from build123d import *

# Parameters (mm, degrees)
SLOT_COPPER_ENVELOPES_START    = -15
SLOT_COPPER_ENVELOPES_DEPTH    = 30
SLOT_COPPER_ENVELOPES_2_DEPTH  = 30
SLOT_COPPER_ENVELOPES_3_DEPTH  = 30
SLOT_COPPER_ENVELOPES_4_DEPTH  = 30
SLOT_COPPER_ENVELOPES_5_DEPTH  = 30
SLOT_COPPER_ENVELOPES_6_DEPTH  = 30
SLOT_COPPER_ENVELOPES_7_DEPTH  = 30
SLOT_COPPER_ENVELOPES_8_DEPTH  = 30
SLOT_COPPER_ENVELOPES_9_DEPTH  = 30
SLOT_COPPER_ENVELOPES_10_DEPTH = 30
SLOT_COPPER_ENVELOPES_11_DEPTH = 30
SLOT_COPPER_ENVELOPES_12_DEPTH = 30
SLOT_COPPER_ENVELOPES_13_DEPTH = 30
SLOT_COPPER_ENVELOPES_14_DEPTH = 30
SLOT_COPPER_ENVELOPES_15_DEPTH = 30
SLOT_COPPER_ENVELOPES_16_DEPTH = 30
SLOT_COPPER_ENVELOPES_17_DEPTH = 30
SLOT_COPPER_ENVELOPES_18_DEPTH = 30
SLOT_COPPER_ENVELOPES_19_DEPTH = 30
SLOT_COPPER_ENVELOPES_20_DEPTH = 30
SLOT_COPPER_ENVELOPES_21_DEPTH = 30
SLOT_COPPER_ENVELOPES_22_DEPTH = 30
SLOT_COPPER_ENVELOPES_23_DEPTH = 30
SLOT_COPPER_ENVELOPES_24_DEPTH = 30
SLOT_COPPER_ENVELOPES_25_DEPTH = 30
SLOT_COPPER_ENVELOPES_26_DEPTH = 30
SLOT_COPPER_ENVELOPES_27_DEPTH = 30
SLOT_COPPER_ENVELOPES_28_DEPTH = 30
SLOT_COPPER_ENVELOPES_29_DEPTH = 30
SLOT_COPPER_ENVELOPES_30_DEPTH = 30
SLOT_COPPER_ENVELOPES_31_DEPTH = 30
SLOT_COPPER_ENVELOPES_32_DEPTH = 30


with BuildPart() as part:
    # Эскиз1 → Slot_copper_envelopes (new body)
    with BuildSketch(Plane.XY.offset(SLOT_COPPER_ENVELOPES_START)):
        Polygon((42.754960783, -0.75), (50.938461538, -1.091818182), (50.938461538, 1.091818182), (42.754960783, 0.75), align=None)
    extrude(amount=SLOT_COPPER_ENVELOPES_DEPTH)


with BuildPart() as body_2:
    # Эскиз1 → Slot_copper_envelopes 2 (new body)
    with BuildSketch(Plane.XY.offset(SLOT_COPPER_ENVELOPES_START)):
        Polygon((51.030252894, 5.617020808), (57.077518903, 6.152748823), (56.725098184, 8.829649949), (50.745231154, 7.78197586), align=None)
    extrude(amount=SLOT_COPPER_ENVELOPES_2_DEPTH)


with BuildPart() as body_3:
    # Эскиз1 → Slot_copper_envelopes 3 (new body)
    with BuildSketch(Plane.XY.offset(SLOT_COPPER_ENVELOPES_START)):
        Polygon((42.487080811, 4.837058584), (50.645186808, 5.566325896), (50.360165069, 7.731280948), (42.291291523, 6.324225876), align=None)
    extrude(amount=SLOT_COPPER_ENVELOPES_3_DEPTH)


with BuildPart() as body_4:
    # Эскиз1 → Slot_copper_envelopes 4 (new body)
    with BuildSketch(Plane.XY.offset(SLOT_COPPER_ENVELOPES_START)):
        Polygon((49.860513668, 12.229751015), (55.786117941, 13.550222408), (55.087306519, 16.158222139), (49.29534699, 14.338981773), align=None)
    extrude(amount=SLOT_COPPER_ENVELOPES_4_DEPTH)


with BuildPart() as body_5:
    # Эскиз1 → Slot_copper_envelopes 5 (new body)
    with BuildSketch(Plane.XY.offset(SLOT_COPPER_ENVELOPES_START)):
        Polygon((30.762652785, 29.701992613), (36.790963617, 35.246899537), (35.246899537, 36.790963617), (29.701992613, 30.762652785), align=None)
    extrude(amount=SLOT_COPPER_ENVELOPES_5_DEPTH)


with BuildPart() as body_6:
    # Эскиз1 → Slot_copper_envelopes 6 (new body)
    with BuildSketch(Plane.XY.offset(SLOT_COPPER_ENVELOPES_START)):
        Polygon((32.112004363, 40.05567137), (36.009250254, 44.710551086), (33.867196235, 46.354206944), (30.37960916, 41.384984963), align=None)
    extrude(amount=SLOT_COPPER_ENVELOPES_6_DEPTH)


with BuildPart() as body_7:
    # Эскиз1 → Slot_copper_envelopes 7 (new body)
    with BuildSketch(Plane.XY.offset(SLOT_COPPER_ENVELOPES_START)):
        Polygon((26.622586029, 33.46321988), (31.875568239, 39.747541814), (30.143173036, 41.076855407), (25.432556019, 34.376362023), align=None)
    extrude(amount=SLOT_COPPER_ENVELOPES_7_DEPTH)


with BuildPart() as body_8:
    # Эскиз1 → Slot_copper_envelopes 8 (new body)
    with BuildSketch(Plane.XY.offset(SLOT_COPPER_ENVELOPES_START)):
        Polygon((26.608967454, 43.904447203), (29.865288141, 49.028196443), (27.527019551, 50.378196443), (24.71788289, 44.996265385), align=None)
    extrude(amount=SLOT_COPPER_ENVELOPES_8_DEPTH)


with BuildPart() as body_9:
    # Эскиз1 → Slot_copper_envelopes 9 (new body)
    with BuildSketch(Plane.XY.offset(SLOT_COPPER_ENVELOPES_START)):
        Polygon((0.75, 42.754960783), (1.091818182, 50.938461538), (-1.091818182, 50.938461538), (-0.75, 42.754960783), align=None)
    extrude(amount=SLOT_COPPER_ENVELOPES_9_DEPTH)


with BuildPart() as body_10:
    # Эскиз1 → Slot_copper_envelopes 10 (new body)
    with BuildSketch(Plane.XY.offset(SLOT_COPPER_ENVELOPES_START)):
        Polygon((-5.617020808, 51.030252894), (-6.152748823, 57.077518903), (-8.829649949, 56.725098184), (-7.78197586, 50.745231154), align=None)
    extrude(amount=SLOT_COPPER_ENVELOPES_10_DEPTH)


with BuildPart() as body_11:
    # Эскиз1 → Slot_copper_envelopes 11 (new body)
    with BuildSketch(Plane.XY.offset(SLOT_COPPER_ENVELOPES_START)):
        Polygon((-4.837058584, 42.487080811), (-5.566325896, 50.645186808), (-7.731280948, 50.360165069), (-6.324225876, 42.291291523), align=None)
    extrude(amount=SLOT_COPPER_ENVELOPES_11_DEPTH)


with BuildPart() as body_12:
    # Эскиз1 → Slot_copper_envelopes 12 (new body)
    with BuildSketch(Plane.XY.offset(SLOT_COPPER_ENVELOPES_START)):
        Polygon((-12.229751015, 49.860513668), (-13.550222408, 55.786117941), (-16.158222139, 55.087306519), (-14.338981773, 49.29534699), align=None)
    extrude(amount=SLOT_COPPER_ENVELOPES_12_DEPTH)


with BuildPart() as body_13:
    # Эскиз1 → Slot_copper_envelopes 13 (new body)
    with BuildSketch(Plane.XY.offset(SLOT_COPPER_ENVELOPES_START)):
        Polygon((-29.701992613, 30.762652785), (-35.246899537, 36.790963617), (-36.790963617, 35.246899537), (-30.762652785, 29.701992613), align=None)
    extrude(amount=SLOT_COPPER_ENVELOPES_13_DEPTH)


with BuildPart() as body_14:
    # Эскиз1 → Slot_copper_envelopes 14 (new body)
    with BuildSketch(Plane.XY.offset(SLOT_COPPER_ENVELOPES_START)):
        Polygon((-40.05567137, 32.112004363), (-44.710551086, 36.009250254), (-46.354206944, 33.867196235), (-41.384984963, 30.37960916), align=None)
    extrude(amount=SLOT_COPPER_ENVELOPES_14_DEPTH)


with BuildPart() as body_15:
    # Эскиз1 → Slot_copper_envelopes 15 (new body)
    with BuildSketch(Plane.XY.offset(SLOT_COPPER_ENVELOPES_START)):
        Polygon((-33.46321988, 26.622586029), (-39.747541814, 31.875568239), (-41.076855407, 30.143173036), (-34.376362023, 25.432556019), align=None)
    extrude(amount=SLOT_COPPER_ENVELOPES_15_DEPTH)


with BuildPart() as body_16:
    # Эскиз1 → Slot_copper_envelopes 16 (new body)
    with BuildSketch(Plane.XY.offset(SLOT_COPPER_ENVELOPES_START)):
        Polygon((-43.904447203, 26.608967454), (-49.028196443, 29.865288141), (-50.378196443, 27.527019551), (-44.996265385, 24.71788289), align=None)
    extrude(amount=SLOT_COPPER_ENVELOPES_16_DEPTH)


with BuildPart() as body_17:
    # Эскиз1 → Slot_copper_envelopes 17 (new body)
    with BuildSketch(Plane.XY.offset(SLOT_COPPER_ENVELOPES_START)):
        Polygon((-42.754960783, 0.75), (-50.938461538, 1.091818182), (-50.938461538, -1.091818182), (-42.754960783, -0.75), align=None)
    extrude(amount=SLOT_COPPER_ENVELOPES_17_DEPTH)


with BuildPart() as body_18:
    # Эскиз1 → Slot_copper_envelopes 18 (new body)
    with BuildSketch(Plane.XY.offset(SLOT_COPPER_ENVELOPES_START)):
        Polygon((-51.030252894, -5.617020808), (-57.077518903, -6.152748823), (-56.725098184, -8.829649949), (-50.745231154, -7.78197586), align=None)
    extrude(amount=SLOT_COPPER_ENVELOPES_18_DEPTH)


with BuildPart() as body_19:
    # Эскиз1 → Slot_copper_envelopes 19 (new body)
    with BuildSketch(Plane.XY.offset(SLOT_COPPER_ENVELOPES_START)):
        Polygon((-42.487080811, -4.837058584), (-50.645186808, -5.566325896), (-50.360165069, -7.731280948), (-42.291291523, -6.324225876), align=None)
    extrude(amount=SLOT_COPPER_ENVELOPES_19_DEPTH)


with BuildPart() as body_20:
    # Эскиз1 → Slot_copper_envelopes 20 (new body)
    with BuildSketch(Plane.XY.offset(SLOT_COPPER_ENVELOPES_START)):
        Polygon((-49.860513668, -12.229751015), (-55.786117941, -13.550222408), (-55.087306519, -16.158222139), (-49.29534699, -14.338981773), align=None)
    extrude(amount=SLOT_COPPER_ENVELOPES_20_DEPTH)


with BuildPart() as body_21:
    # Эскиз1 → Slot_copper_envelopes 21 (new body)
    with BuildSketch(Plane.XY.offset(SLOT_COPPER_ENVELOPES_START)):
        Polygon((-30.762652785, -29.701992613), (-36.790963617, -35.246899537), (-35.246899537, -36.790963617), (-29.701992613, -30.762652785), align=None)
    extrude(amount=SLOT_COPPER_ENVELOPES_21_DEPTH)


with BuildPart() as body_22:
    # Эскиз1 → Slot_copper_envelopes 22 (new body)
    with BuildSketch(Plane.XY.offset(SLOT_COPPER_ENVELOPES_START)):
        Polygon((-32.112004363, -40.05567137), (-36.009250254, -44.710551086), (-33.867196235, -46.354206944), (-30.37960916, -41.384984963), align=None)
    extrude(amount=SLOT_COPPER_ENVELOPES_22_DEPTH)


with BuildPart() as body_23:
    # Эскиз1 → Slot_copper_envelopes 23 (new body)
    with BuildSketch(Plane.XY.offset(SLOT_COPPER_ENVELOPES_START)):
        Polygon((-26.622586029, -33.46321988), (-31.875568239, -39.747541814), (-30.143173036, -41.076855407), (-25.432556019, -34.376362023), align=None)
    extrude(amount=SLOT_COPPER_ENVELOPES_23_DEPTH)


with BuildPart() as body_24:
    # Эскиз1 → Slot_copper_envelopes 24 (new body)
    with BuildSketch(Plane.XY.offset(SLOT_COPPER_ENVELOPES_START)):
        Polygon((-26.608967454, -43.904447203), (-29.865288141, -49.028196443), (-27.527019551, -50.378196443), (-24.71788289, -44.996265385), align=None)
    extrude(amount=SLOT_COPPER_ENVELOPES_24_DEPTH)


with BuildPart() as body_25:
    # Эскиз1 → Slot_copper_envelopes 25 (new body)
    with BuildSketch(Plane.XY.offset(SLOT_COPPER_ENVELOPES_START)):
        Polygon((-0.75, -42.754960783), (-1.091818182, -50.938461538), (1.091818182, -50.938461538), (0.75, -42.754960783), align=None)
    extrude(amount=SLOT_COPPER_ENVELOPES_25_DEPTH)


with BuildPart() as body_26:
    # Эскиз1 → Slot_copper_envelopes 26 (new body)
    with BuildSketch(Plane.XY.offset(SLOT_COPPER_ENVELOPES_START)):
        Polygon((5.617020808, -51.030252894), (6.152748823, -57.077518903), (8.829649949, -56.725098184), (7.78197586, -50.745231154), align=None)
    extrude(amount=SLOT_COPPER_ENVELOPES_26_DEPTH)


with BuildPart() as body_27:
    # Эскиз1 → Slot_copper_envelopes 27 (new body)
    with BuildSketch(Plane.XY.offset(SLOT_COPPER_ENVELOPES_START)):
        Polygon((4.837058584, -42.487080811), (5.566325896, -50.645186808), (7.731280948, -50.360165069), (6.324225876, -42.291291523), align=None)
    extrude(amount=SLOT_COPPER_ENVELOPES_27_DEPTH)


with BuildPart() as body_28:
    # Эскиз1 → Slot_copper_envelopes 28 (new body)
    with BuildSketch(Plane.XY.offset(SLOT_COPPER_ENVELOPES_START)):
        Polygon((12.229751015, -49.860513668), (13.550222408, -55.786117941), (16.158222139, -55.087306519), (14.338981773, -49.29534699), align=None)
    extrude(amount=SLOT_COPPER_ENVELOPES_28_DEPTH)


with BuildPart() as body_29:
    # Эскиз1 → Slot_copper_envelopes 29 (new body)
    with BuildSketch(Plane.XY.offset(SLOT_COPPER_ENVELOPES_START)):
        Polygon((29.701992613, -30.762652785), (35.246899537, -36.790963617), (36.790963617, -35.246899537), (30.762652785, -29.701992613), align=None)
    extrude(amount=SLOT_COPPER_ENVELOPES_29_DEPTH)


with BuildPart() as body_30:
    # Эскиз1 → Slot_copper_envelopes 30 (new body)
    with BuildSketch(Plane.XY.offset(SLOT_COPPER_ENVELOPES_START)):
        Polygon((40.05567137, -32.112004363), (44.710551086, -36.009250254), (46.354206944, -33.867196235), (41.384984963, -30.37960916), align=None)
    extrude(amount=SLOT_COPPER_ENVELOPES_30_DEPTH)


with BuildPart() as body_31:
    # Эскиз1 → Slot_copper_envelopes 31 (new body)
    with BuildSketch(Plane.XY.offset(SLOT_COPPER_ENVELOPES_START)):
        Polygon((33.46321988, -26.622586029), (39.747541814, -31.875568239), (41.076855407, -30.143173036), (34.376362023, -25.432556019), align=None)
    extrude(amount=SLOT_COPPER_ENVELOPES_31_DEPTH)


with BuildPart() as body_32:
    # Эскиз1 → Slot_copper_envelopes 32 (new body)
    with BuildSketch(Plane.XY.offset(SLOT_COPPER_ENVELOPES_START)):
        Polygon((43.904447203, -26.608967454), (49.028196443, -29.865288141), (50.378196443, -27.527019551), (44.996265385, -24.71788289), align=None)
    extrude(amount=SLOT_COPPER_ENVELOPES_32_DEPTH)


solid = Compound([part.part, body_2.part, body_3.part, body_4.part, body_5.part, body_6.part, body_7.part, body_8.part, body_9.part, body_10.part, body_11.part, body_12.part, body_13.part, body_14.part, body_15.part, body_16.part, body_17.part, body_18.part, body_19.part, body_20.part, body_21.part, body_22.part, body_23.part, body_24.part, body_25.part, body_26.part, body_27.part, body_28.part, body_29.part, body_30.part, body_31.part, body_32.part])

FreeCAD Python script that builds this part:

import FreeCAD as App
import Part
import Sketcher
from FreeCAD import Vector
Q = App.Units.Quantity


def add_polygon(sketch, points):
    """Adds a closed chain of lines whose ends are joined by coincident constraints."""
    first, n = sketch.GeometryCount, len(points)
    for a, b in zip(points, points[1:] + points[:1]):
        sketch.addGeometry(Part.LineSegment(App.Vector(*a, 0), App.Vector(*b, 0)), False)
    for i in range(n):
        sketch.addConstraint(Sketcher.Constraint("Coincident", first + i, 2, first + (i + 1) % n, 1))

doc = App.newDocument("Part")
body = doc.addObject("PartDesign::Body", "Body")

# Sketch on XY plane
sketch1 = body.newObject("Sketcher::SketchObject", "Sketch")
sketch1.AttachmentSupport = (doc.getObject("XY_Plane"), [""])
sketch1.MapMode = "FlatFace"
sketch1.AttachmentOffset = App.Placement(Vector(0, 0, -15), App.Rotation())
add_polygon(sketch1, [(42.8, -0.8), (50.9, -1.1), (50.9, 1.1), (42.8, 0.8)])  # lines 0-3
sketch1.addConstraint([
    Sketcher.Constraint("Vertical", 1),
    Sketcher.Constraint("Vertical", 3),
    Sketcher.Constraint("Equal", 0, 2),
    Sketcher.Constraint("DistanceY", 3, 2, 3, 1, 1.5),
    Sketcher.Constraint("DistanceY", -1, 1, 2, 2, 0.75),
    Sketcher.Constraint("DistanceX", 2, 2, 1, 2, 8.183501),
    Sketcher.Constraint("DistanceY", 1, 1, 1, 2, 2.183636),
    Sketcher.Constraint("DistanceX", -1, 1, 0, 2, 50.938462),
])
pad1 = body.newObject("PartDesign::Pad", "Pad")
pad1.Profile = sketch1
pad1.Length = 30
body2 = doc.addObject("PartDesign::Body", "Body001")

# Sketch on XY plane
sketch2 = body2.newObject("Sketcher::SketchObject", "Sketch001")
sketch2.AttachmentSupport = (doc.getObject("XY_Plane001"), [""])
sketch2.MapMode = "FlatFace"
sketch2.AttachmentOffset = App.Placement(Vector(0, 0, -15), App.Rotation())
add_polygon(sketch2, [(51, 5.6), (57.1, 6.2), (56.7, 8.8), (50.7, 7.8)])  # lines 0-3
sketch2.addConstraint([
    Sketcher.Constraint("Parallel", 1, 3),
    Sketcher.Constraint("Equal", 0, 2),
    Sketcher.Constraint("Angle", 1, Q("97.5 deg")),
    Sketcher.Constraint("Distance", 1, 2.7),
    Sketcher.Constraint("DistanceX", -1, 1, 1, 2, 56.725098),
    Sketcher.Constraint("Distance", 0, 6.07095),
    Sketcher.Constraint("DistanceY", -1, 1, 0, 2, 6.152749),
    Sketcher.Constraint("DistanceX", -1, 1, 2, 2, 50.745231),
])
pad2 = body2.newObject("PartDesign::Pad", "Pad001")
pad2.Profile = sketch2
pad2.Length = 30
body3 = doc.addObject("PartDesign::Body", "Body002")

# Sketch on XY plane
sketch3 = body3.newObject("Sketcher::SketchObject", "Sketch002")
sketch3.AttachmentSupport = (doc.getObject("XY_Plane002"), [""])
sketch3.MapMode = "FlatFace"
sketch3.AttachmentOffset = App.Placement(Vector(0, 0, -15), App.Rotation())
add_polygon(sketch3, [(42.5, 4.8), (50.6, 5.6), (50.4, 7.7), (42.3, 6.3)])  # lines 0-3
sketch3.addConstraint([
    Sketcher.Constraint("Parallel", 1, 3),
    Sketcher.Constraint("Equal", 0, 2),
    Sketcher.Constraint("Angle", 1, Q("97.5 deg")),
    Sketcher.Constraint("Distance", 3, 1.5),
    Sketcher.Constraint("DistanceY", 0, 2, 2, 2, 0.7579),
    Sketcher.Constraint("DistanceY", -1, 1, 1, 2, 7.731281),
    Sketcher.Constraint("DistanceX", -1, 1, 2, 2, 42.291292),
    Sketcher.Constraint("DistanceY", -1, 1, 3, 2, 4.837059),
])
pad3 = body3.newObject("PartDesign::Pad", "Pad002")
pad3.Profile = sketch3
pad3.Length = 30
body4 = doc.addObject("PartDesign::Body", "Body003")

# Sketch on XY plane
sketch4 = body4.newObject("Sketcher::SketchObject", "Sketch003")
sketch4.AttachmentSupport = (doc.getObject("XY_Plane003"), [""])
sketch4.MapMode = "FlatFace"
sketch4.AttachmentOffset = App.Placement(Vector(0, 0, -15), App.Rotation())
add_polygon(sketch4, [(49.9, 12.2), (55.8, 13.6), (55.1, 16.2), (49.3, 14.3)])  # lines 0-3
sketch4.addConstraint([
    Sketcher.Constraint("Parallel", 1, 3),
    Sketcher.Constraint("Equal", 0, 2),
    Sketcher.Constraint("Angle", 1, Q("105 deg")),
    Sketcher.Constraint("Distance", 1, 2.7),
    Sketcher.Constraint("Distance", 0, 6.07095),
    Sketcher.Constraint("DistanceY", -1, 1, 2, 2, 14.338982),
    Sketcher.Constraint("DistanceY", -1, 1, 3, 2, 12.229751),
    Sketcher.Constraint("DistanceX", -1, 1, 0, 2, 55.786118),
])
pad4 = body4.newObject("PartDesign::Pad", "Pad003")
pad4.Profile = sketch4
pad4.Length = 30
body5 = doc.addObject("PartDesign::Body", "Body004")

# Sketch on XY plane
sketch5 = body5.newObject("Sketcher::SketchObject", "Sketch004")
sketch5.AttachmentSupport = (doc.getObject("XY_Plane004"), [""])
sketch5.MapMode = "FlatFace"
sketch5.AttachmentOffset = App.Placement(Vector(0, 0, -15), App.Rotation())
add_polygon(sketch5, [(30.8, 29.7), (36.8, 35.2), (35.2, 36.8), (29.7, 30.8)])  # lines 0-3
sketch5.addConstraint([
    Sketcher.Constraint("Parallel", 1, 3),
    Sketcher.Constraint("Equal", 0, 2),
    Sketcher.Constraint("Angle", 1, Q("135 deg")),
    Sketcher.Constraint("Distance", 3, 1.5),
    Sketcher.Constraint("DistanceY", -1, 1, 0, 2, 35.2469),
    Sketcher.Constraint("DistanceX", -1, 1, 1, 2, 35.2469),
    Sketcher.Constraint("DistanceY", 2, 2, 1, 2, 6.028311),
    Sketcher.Constraint("Distance", 0, 8.190636),
])
pad5 = body5.newObject("PartDesign::Pad", "Pad004")
pad5.Profile = sketch5
pad5.Length = 30
body6 = doc.addObject("PartDesign::Body", "Body005")

# Sketch on XY plane
sketch6 = body6.newObject("Sketcher::SketchObject", "Sketch005")
sketch6.AttachmentSupport = (doc.getObject("XY_Plane005"), [""])
sketch6.MapMode = "FlatFace"
sketch6.AttachmentOffset = App.Placement(Vector(0, 0, -15), App.Rotation())
add_polygon(sketch6, [(32.1, 40.1), (36, 44.7), (33.9, 46.4), (30.4, 41.4)])  # lines 0-3
sketch6.addConstraint([
    Sketcher.Constraint("Parallel", 1, 3),
    Sketcher.Constraint("Equal", 0, 2),
    Sketcher.Constraint("Angle", 1, Q("142.5 deg")),
    Sketcher.Constraint("Distance", 1, 2.7),
    Sketcher.Constraint("Distance", 0, 6.07095),
    Sketcher.Constraint("DistanceX", -1, 1, 0, 2, 36.00925),
    Sketcher.Constraint("DistanceY", -1, 1, 0, 2, 44.710551),
    Sketcher.Constraint("DistanceX", -1, 1, 2, 2, 30.379609),
])
pad6 = body6.newObject("PartDesign::Pad", "Pad005")
pad6.Profile = sketch6
pad6.Length = 30
body7 = doc.addObject("PartDesign::Body", "Body006")

# Sketch on XY plane
sketch7 = body7.newObject("Sketcher::SketchObject", "Sketch006")
sketch7.AttachmentSupport = (doc.getObject("XY_Plane006"), [""])
sketch7.MapMode = "FlatFace"
sketch7.AttachmentOffset = App.Placement(Vector(0, 0, -15), App.Rotation())
add_polygon(sketch7, [(26.6, 33.5), (31.9, 39.7), (30.1, 41.1), (25.4, 34.4)])  # lines 0-3
sketch7.addConstraint([
    Sketcher.Constraint("Parallel", 1, 3),
    Sketcher.Constraint("Equal", 0, 2),
    Sketcher.Constraint("Angle", 1, Q("142.5 deg")),
    Sketcher.Constraint("Distance", 3, 1.5),
    Sketcher.Constraint("DistanceX", -1, 1, 0, 2, 31.875568),
    Sketcher.Constraint("DistanceY", -1, 1, 0, 2, 39.747542),
    Sketcher.Constraint("DistanceY", -1, 1, 3, 2, 33.46322),
    Sketcher.Constraint("Distance", 0, 8.190636),
])
pad7 = body7.newObject("PartDesign::Pad", "Pad006")
pad7.Profile = sketch7
pad7.Length = 30
body8 = doc.addObject("PartDesign::Body", "Body007")

# Sketch on XY plane
sketch8 = body8.newObject("Sketcher::SketchObject", "Sketch007")
sketch8.AttachmentSupport = (doc.getObject("XY_Plane007"), [""])
sketch8.MapMode = "FlatFace"
sketch8.AttachmentOffset = App.Placement(Vector(0, 0, -15), App.Rotation())
add_polygon(sketch8, [(26.6, 43.9), (29.9, 49), (27.5, 50.4), (24.7, 45)])  # lines 0-3
sketch8.addConstraint([
    Sketcher.Constraint("Parallel", 1, 3),
    Sketcher.Constraint("Equal", 0, 2),
    Sketcher.Constraint("Angle", 1, Q("150 deg")),
    Sketcher.Constraint("Distance", 1, 2.7),
    Sketcher.Constraint("Distance", 0, 6.07095),
    Sketcher.Constraint("DistanceX", -1, 1, 0, 2, 29.865288),
    Sketcher.Constraint("DistanceY", 2, 2, 1, 2, 5.381931),
    Sketcher.Constraint("DistanceY", -1, 1, 0, 2, 49.028196),
])
pad8 = body8.newObject("PartDesign::Pad", "Pad007")
pad8.Profile = sketch8
pad8.Length = 30
body9 = doc.addObject("PartDesign::Body", "Body008")

# Sketch on XY plane
sketch9 = body9.newObject("Sketcher::SketchObject", "Sketch008")
sketch9.AttachmentSupport = (doc.getObject("XY_Plane008"), [""])
sketch9.MapMode = "FlatFace"
sketch9.AttachmentOffset = App.Placement(Vector(0, 0, -15), App.Rotation())
add_polygon(sketch9, [(0.8, 42.8), (1.1, 50.9), (-1.1, 50.9), (-0.8, 42.8)])  # lines 0-3
sketch9.addConstraint([
    Sketcher.Constraint("Horizontal", 1),
    Sketcher.Constraint("Horizontal", 3),
    Sketcher.Constraint("Equal", 0, 2),
    Sketcher.Constraint("DistanceX", 3, 1, 3, 2, 1.5),
    Sketcher.Constraint("DistanceX", 2, 2, -1, 1, 0.75),
    Sketcher.Constraint("DistanceY", 2, 2, 1, 2, 8.183501),
    Sketcher.Constraint("DistanceX", 1, 2, 1, 1, 2.183636),
    Sketcher.Constraint("DistanceY", -1, 1, 0, 2, 50.938462),
])
pad9 = body9.newObject("PartDesign::Pad", "Pad008")
pad9.Profile = sketch9
pad9.Length = 30
body10 = doc.addObject("PartDesign::Body", "Body009")

# Sketch on XY plane
sketch10 = body10.newObject("Sketcher::SketchObject", "Sketch009")
sketch10.AttachmentSupport = (doc.getObject("XY_Plane009"), [""])
sketch10.MapMode = "FlatFace"
sketch10.AttachmentOffset = App.Placement(Vector(0, 0, -15), App.Rotation())
add_polygon(sketch10, [(-5.6, 51), (-6.2, 57.1), (-8.8, 56.7), (-7.8, 50.7)])  # lines 0-3
sketch10.addConstraint([
    Sketcher.Constraint("Parallel", 1, 3),
    Sketcher.Constraint("Equal", 0, 2),
    Sketcher.Constraint("Angle", 1, Q("-172.5 deg")),
    Sketcher.Constraint("Distance", 1, 2.7),
    Sketcher.Constraint("DistanceY", -1, 1, 1, 2, 56.725098),
    Sketcher.Constraint("Distance", 0, 6.07095),
    Sketcher.Constraint("DistanceX", 0, 2, -1, 1, 6.152749),
    Sketcher.Constraint("DistanceY", -1, 1, 2, 2, 50.745231),
])
pad10 = body10.newObject("PartDesign::Pad", "Pad009")
pad10.Profile = sketch10
pad10.Length = 30
body11 = doc.addObject("PartDesign::Body", "Body010")

# Sketch on XY plane
sketch11 = body11.newObject("Sketcher::SketchObject", "Sketch010")
sketch11.AttachmentSupport = (doc.getObject("XY_Plane010"), [""])
sketch11.MapMode = "FlatFace"
sketch11.AttachmentOffset = App.Placement(Vector(0, 0, -15), App.Rotation())
add_polygon(sketch11, [(-4.8, 42.5), (-5.6, 50.6), (-7.7, 50.4), (-6.3, 42.3)])  # lines 0-3
sketch11.addConstraint([
    Sketcher.Constraint("Parallel", 1, 3),
    Sketcher.Constraint("Equal", 0, 2),
    Sketcher.Constraint("Angle", 1, Q("-172.5 deg")),
    Sketcher.Constraint("Distance", 3, 1.5),
    Sketcher.Constraint("DistanceX", 2, 2, 0, 2, 0.7579),
    Sketcher.Constraint("DistanceX", 1, 2, -1, 1, 7.731281),
    Sketcher.Constraint("DistanceY", -1, 1, 2, 2, 42.291292),
    Sketcher.Constraint("DistanceX", 3, 2, -1, 1, 4.837059),
])
pad11 = body11.newObject("PartDesign::Pad", "Pad010")
pad11.Profile = sketch11
pad11.Length = 30
body12 = doc.addObject("PartDesign::Body", "Body011")

# Sketch on XY plane
sketch12 = body12.newObject("Sketcher::SketchObject", "Sketch011")
sketch12.AttachmentSupport = (doc.getObject("XY_Plane011"), [""])
sketch12.MapMode = "FlatFace"
sketch12.AttachmentOffset = App.Placement(Vector(0, 0, -15), App.Rotation())
add_polygon(sketch12, [(-12.2, 49.9), (-13.6, 55.8), (-16.2, 55.1), (-14.3, 49.3)])  # lines 0-3
sketch12.addConstraint([
    Sketcher.Constraint("Parallel", 1, 3),
    Sketcher.Constraint("Equal", 0, 2),
    Sketcher.Constraint("Angle", 1, Q("-165 deg")),
    Sketcher.Constraint("Distance", 1, 2.7),
    Sketcher.Constraint("Distance", 0, 6.07095),
    Sketcher.Constraint("DistanceX", 2, 2, -1, 1, 14.338982),
    Sketcher.Constraint("DistanceX", 3, 2, -1, 1, 12.229751),
    Sketcher.Constraint("DistanceY", -1, 1, 0, 2, 55.786118),
])
pad12 = body12.newObject("PartDesign::Pad", "Pad011")
pad12.Profile = sketch12
pad12.Length = 30
body13 = doc.addObject("PartDesign::Body", "Body012")

# Sketch on XY plane
sketch13 = body13.newObject("Sketcher::SketchObject", "Sketch012")
sketch13.AttachmentSupport = (doc.getObject("XY_Plane012"), [""])
sketch13.MapMode = "FlatFace"
sketch13.AttachmentOffset = App.Placement(Vector(0, 0, -15), App.Rotation())
add_polygon(sketch13, [(-29.7, 30.8), (-35.2, 36.8), (-36.8, 35.2), (-30.8, 29.7)])  # lines 0-3
sketch13.addConstraint([
    Sketcher.Constraint("Parallel", 1, 3),
    Sketcher.Constraint("Equal", 0, 2),
    Sketcher.Constraint("Angle", 1, Q("-135 deg")),
    Sketcher.Constraint("Distance", 3, 1.5),
    Sketcher.Constraint("DistanceX", 0, 2, -1, 1, 35.2469),
    Sketcher.Constraint("DistanceY", -1, 1, 1, 2, 35.2469),
    Sketcher.Constraint("DistanceX", 1, 2, 2, 2, 6.028311),
    Sketcher.Constraint("Distance", 0, 8.190636),
])
pad13 = body13.newObject("PartDesign::Pad", "Pad012")
pad13.Profile = sketch13
pad13.Length = 30
body14 = doc.addObject("PartDesign::Body", "Body013")

# Sketch on XY plane
sketch14 = body14.newObject("Sketcher::SketchObject", "Sketch013")
sketch14.AttachmentSupport = (doc.getObject("XY_Plane013"), [""])
sketch14.MapMode = "FlatFace"
sketch14.AttachmentOffset = App.Placement(Vector(0, 0, -15), App.Rotation())
add_polygon(sketch14, [(-40.1, 32.1), (-44.7, 36), (-46.4, 33.9), (-41.4, 30.4)])  # lines 0-3
sketch14.addConstraint([
    Sketcher.Constraint("Parallel", 1, 3),
    Sketcher.Constraint("Equal", 0, 2),
    Sketcher.Constraint("Angle", 1, Q("-127.5 deg")),
    Sketcher.Constraint("Distance", 1, 2.7),
    Sketcher.Constraint("Distance", 0, 6.07095),
    Sketcher.Constraint("DistanceX", 0, 2, -1, 1, 44.710551),
    Sketcher.Constraint("DistanceY", -1, 1, 0, 2, 36.00925),
    Sketcher.Constraint("DistanceY", -1, 1, 2, 2, 30.379609),
])
pad14 = body14.newObject("PartDesign::Pad", "Pad013")
pad14.Profile = sketch14
pad14.Length = 30
body15 = doc.addObject("PartDesign::Body", "Body014")

# Sketch on XY plane
sketch15 = body15.newObject("Sketcher::SketchObject", "Sketch014")
sketch15.AttachmentSupport = (doc.getObject("XY_Plane014"), [""])
sketch15.MapMode = "FlatFace"
sketch15.AttachmentOffset = App.Placement(Vector(0, 0, -15), App.Rotation())
add_polygon(sketch15, [(-33.5, 26.6), (-39.7, 31.9), (-41.1, 30.1), (-34.4, 25.4)])  # lines 0-3
sketch15.addConstraint([
    Sketcher.Constraint("Parallel", 1, 3),
    Sketcher.Constraint("Equal", 0, 2),
    Sketcher.Constraint("Angle", 1, Q("-127.5 deg")),
    Sketcher.Constraint("Distance", 3, 1.5),
    Sketcher.Constraint("DistanceX", 0, 2, -1, 1, 39.747542),
    Sketcher.Constraint("DistanceY", -1, 1, 0, 2, 31.875568),
    Sketcher.Constraint("DistanceX", 3, 2, -1, 1, 33.46322),
    Sketcher.Constraint("Distance", 0, 8.190636),
])
pad15 = body15.newObject("PartDesign::Pad", "Pad014")
pad15.Profile = sketch15
pad15.Length = 30
body16 = doc.addObject("PartDesign::Body", "Body015")

# Sketch on XY plane
sketch16 = body16.newObject("Sketcher::SketchObject", "Sketch015")
sketch16.AttachmentSupport = (doc.getObject("XY_Plane015"), [""])
sketch16.MapMode = "FlatFace"
sketch16.AttachmentOffset = App.Placement(Vector(0, 0, -15), App.Rotation())
add_polygon(sketch16, [(-43.9, 26.6), (-49, 29.9), (-50.4, 27.5), (-45, 24.7)])  # lines 0-3
sketch16.addConstraint([
    Sketcher.Constraint("Parallel", 1, 3),
    Sketcher.Constraint("Equal", 0, 2),
    Sketcher.Constraint("Angle", 1, Q("-120 deg")),
    Sketcher.Constraint("Distance", 1, 2.7),
    Sketcher.Constraint("Distance", 0, 6.07095),
    Sketcher.Constraint("DistanceY", -1, 1, 0, 2, 29.865288),
    Sketcher.Constraint("DistanceX", 1, 2, 2, 2, 5.381931),
    Sketcher.Constraint("DistanceX", 0, 2, -1, 1, 49.028196),
])
pad16 = body16.newObject("PartDesign::Pad", "Pad015")
pad16.Profile = sketch16
pad16.Length = 30
body17 = doc.addObject("PartDesign::Body", "Body016")

# Sketch on XY plane
sketch17 = body17.newObject("Sketcher::SketchObject", "Sketch016")
sketch17.AttachmentSupport = (doc.getObject("XY_Plane016"), [""])
sketch17.MapMode = "FlatFace"
sketch17.AttachmentOffset = App.Placement(Vector(0, 0, -15), App.Rotation())
add_polygon(sketch17, [(-42.8, 0.8), (-50.9, 1.1), (-50.9, -1.1), (-42.8, -0.8)])  # lines 0-3
sketch17.addConstraint([
    Sketcher.Constraint("Vertical", 1),
    Sketcher.Constraint("Vertical", 3),
    Sketcher.Constraint("Equal", 0, 2),
    Sketcher.Constraint("DistanceY", 3, 1, 3, 2, 1.5),
    Sketcher.Constraint("DistanceY", 2, 2, -1, 1, 0.75),
    Sketcher.Constraint("DistanceX", 1, 2, 2, 2, 8.183501),
    Sketcher.Constraint("DistanceY", 1, 2, 1, 1, 2.183636),
    Sketcher.Constraint("DistanceX", 0, 2, -1, 1, 50.938462),
])
pad17 = body17.newObject("PartDesign::Pad", "Pad016")
pad17.Profile = sketch17
pad17.Length = 30
body18 = doc.addObject("PartDesign::Body", "Body017")

# Sketch on XY plane
sketch18 = body18.newObject("Sketcher::SketchObject", "Sketch017")
sketch18.AttachmentSupport = (doc.getObject("XY_Plane017"), [""])
sketch18.MapMode = "FlatFace"
sketch18.AttachmentOffset = App.Placement(Vector(0, 0, -15), App.Rotation())
add_polygon(sketch18, [(-51, -5.6), (-57.1, -6.2), (-56.7, -8.8), (-50.7, -7.8)])  # lines 0-3
sketch18.addConstraint([
    Sketcher.Constraint("Parallel", 1, 3),
    Sketcher.Constraint("Equal", 0, 2),
    Sketcher.Constraint("Angle", 1, Q("-82.5 deg")),
    Sketcher.Constraint("Distance", 1, 2.7),
    Sketcher.Constraint("DistanceX", 1, 2, -1, 1, 56.725098),
    Sketcher.Constraint("Distance", 0, 6.07095),
    Sketcher.Constraint("DistanceY", 0, 2, -1, 1, 6.152749),
    Sketcher.Constraint("DistanceX", 2, 2, -1, 1, 50.745231),
])
pad18 = body18.newObject("PartDesign::Pad", "Pad017")
pad18.Profile = sketch18
pad18.Length = 30
body19 = doc.addObject("PartDesign::Body", "Body018")

# Sketch on XY plane
sketch19 = body19.newObject("Sketcher::SketchObject", "Sketch018")
sketch19.AttachmentSupport = (doc.getObject("XY_Plane018"), [""])
sketch19.MapMode = "FlatFace"
sketch19.AttachmentOffset = App.Placement(Vector(0, 0, -15), App.Rotation())
add_polygon(sketch19, [(-42.5, -4.8), (-50.6, -5.6), (-50.4, -7.7), (-42.3, -6.3)])  # lines 0-3
sketch19.addConstraint([
    Sketcher.Constraint("Parallel", 1, 3),
    Sketcher.Constraint("Equal", 0, 2),
    Sketcher.Constraint("Angle", 1, Q("-82.5 deg")),
    Sketcher.Constraint("Distance", 3, 1.5),
    Sketcher.Constraint("DistanceY", 2, 2, 0, 2, 0.7579),
    Sketcher.Constraint("DistanceY", 1, 2, -1, 1, 7.731281),
    Sketcher.Constraint("DistanceX", 2, 2, -1, 1, 42.291292),
    Sketcher.Constraint("DistanceY", 3, 2, -1, 1, 4.837059),
])
pad19 = body19.newObject("PartDesign::Pad", "Pad018")
pad19.Profile = sketch19
pad19.Length = 30
body20 = doc.addObject("PartDesign::Body", "Body019")

# Sketch on XY plane
sketch20 = body20.newObject("Sketcher::SketchObject", "Sketch019")
sketch20.AttachmentSupport = (doc.getObject("XY_Plane019"), [""])
sketch20.MapMode = "FlatFace"
sketch20.AttachmentOffset = App.Placement(Vector(0, 0, -15), App.Rotation())
add_polygon(sketch20, [(-49.9, -12.2), (-55.8, -13.6), (-55.1, -16.2), (-49.3, -14.3)])  # lines 0-3
sketch20.addConstraint([
    Sketcher.Constraint("Parallel", 1, 3),
    Sketcher.Constraint("Equal", 0, 2),
    Sketcher.Constraint("Angle", 1, Q("-75 deg")),
    Sketcher.Constraint("Distance", 1, 2.7),
    Sketcher.Constraint("Distance", 0, 6.07095),
    Sketcher.Constraint("DistanceY", 2, 2, -1, 1, 14.338982),
    Sketcher.Constraint("DistanceY", 3, 2, -1, 1, 12.229751),
    Sketcher.Constraint("DistanceX", 0, 2, -1, 1, 55.786118),
])
pad20 = body20.newObject("PartDesign::Pad", "Pad019")
pad20.Profile = sketch20
pad20.Length = 30
body21 = doc.addObject("PartDesign::Body", "Body020")

# Sketch on XY plane
sketch21 = body21.newObject("Sketcher::SketchObject", "Sketch020")
sketch21.AttachmentSupport = (doc.getObject("XY_Plane020"), [""])
sketch21.MapMode = "FlatFace"
sketch21.AttachmentOffset = App.Placement(Vector(0, 0, -15), App.Rotation())
add_polygon(sketch21, [(-30.8, -29.7), (-36.8, -35.2), (-35.2, -36.8), (-29.7, -30.8)])  # lines 0-3
sketch21.addConstraint([
    Sketcher.Constraint("Parallel", 1, 3),
    Sketcher.Constraint("Equal", 0, 2),
    Sketcher.Constraint("Angle", 1, Q("-45 deg")),
    Sketcher.Constraint("Distance", 3, 1.5),
    Sketcher.Constraint("DistanceY", 0, 2, -1, 1, 35.2469),
    Sketcher.Constraint("DistanceX", 1, 2, -1, 1, 35.2469),
    Sketcher.Constraint("DistanceY", 1, 2, 2, 2, 6.028311),
    Sketcher.Constraint("Distance", 0, 8.190636),
])
pad21 = body21.newObject("PartDesign::Pad", "Pad020")
pad21.Profile = sketch21
pad21.Length = 30
body22 = doc.addObject("PartDesign::Body", "Body021")

# Sketch on XY plane
sketch22 = body22.newObject("Sketcher::SketchObject", "Sketch021")
sketch22.AttachmentSupport = (doc.getObject("XY_Plane021"), [""])
sketch22.MapMode = "FlatFace"
sketch22.AttachmentOffset = App.Placement(Vector(0, 0, -15), App.Rotation())
add_polygon(sketch22, [(-32.1, -40.1), (-36, -44.7), (-33.9, -46.4), (-30.4, -41.4)])  # lines 0-3
sketch22.addConstraint([
    Sketcher.Constraint("Parallel", 1, 3),
    Sketcher.Constraint("Equal", 0, 2),
    Sketcher.Constraint("Angle", 1, Q("-37.5 deg")),
    Sketcher.Constraint("Distance", 1, 2.7),
    Sketcher.Constraint("Distance", 0, 6.07095),
    Sketcher.Constraint("DistanceX", 0, 2, -1, 1, 36.00925),
    Sketcher.Constraint("DistanceY", 0, 2, -1, 1, 44.710551),
    Sketcher.Constraint("DistanceX", 2, 2, -1, 1, 30.379609),
])
pad22 = body22.newObject("PartDesign::Pad", "Pad021")
pad22.Profile = sketch22
pad22.Length = 30
body23 = doc.addObject("PartDesign::Body", "Body022")

# Sketch on XY plane
sketch23 = body23.newObject("Sketcher::SketchObject", "Sketch022")
sketch23.AttachmentSupport = (doc.getObject("XY_Plane022"), [""])
sketch23.MapMode = "FlatFace"
sketch23.AttachmentOffset = App.Placement(Vector(0, 0, -15), App.Rotation())
add_polygon(sketch23, [(-26.6, -33.5), (-31.9, -39.7), (-30.1, -41.1), (-25.4, -34.4)])  # lines 0-3
sketch23.addConstraint([
    Sketcher.Constraint("Parallel", 1, 3),
    Sketcher.Constraint("Equal", 0, 2),
    Sketcher.Constraint("Angle", 1, Q("-37.5 deg")),
    Sketcher.Constraint("Distance", 3, 1.5),
    Sketcher.Constraint("DistanceX", 0, 2, -1, 1, 31.875568),
    Sketcher.Constraint("DistanceY", 0, 2, -1, 1, 39.747542),
    Sketcher.Constraint("DistanceY", 3, 2, -1, 1, 33.46322),
    Sketcher.Constraint("Distance", 0, 8.190636),
])
pad23 = body23.newObject("PartDesign::Pad", "Pad022")
pad23.Profile = sketch23
pad23.Length = 30
body24 = doc.addObject("PartDesign::Body", "Body023")

# Sketch on XY plane
sketch24 = body24.newObject("Sketcher::SketchObject", "Sketch023")
sketch24.AttachmentSupport = (doc.getObject("XY_Plane023"), [""])
sketch24.MapMode = "FlatFace"
sketch24.AttachmentOffset = App.Placement(Vector(0, 0, -15), App.Rotation())
add_polygon(sketch24, [(-26.6, -43.9), (-29.9, -49), (-27.5, -50.4), (-24.7, -45)])  # lines 0-3
sketch24.addConstraint([
    Sketcher.Constraint("Parallel", 1, 3),
    Sketcher.Constraint("Equal", 0, 2),
    Sketcher.Constraint("Angle", 1, Q("-30 deg")),
    Sketcher.Constraint("Distance", 1, 2.7),
    Sketcher.Constraint("Distance", 0, 6.07095),
    Sketcher.Constraint("DistanceX", 0, 2, -1, 1, 29.865288),
    Sketcher.Constraint("DistanceY", 1, 2, 2, 2, 5.381931),
    Sketcher.Constraint("DistanceY", 0, 2, -1, 1, 49.028196),
])
pad24 = body24.newObject("PartDesign::Pad", "Pad023")
pad24.Profile = sketch24
pad24.Length = 30
body25 = doc.addObject("PartDesign::Body", "Body024")

# Sketch on XY plane
sketch25 = body25.newObject("Sketcher::SketchObject", "Sketch024")
sketch25.AttachmentSupport = (doc.getObject("XY_Plane024"), [""])
sketch25.MapMode = "FlatFace"
sketch25.AttachmentOffset = App.Placement(Vector(0, 0, -15), App.Rotation())
add_polygon(sketch25, [(-0.8, -42.8), (-1.1, -50.9), (1.1, -50.9), (0.8, -42.8)])  # lines 0-3
sketch25.addConstraint([
    Sketcher.Constraint("Horizontal", 1),
    Sketcher.Constraint("Horizontal", 3),
    Sketcher.Constraint("Equal", 0, 2),
    Sketcher.Constraint("DistanceX", 3, 2, 3, 1, 1.5),
    Sketcher.Constraint("DistanceX", -1, 1, 2, 2, 0.75),
    Sketcher.Constraint("DistanceY", 1, 2, 2, 2, 8.183501),
    Sketcher.Constraint("DistanceX", 1, 1, 1, 2, 2.183636),
    Sketcher.Constraint("DistanceY", 0, 2, -1, 1, 50.938462),
])
pad25 = body25.newObject("PartDesign::Pad", "Pad024")
pad25.Profile = sketch25
pad25.Length = 30
body26 = doc.addObject("PartDesign::Body", "Body025")

# Sketch on XY plane
sketch26 = body26.newObject("Sketcher::SketchObject", "Sketch025")
sketch26.AttachmentSupport = (doc.getObject("XY_Plane025"), [""])
sketch26.MapMode = "FlatFace"
sketch26.AttachmentOffset = App.Placement(Vector(0, 0, -15), App.Rotation())
add_polygon(sketch26, [(5.6, -51), (6.2, -57.1), (8.8, -56.7), (7.8, -50.7)])  # lines 0-3
sketch26.addConstraint([
    Sketcher.Constraint("Parallel", 1, 3),
    Sketcher.Constraint("Equal", 0, 2),
    Sketcher.Constraint("Angle", 1, Q("7.5 deg")),
    Sketcher.Constraint("Distance", 1, 2.7),
    Sketcher.Constraint("DistanceY", 1, 2, -1, 1, 56.725098),
    Sketcher.Constraint("Distance", 0, 6.07095),
    Sketcher.Constraint("DistanceX", -1, 1, 0, 2, 6.152749),
    Sketcher.Constraint("DistanceY", 2, 2, -1, 1, 50.745231),
])
pad26 = body26.newObject("PartDesign::Pad", "Pad025")
pad26.Profile = sketch26
pad26.Length = 30
body27 = doc.addObject("PartDesign::Body", "Body026")

# Sketch on XY plane
sketch27 = body27.newObject("Sketcher::SketchObject", "Sketch026")
sketch27.AttachmentSupport = (doc.getObject("XY_Plane026"), [""])
sketch27.MapMode = "FlatFace"
sketch27.AttachmentOffset = App.Placement(Vector(0, 0, -15), App.Rotation())
add_polygon(sketch27, [(4.8, -42.5), (5.6, -50.6), (7.7, -50.4), (6.3, -42.3)])  # lines 0-3
sketch27.addConstraint([
    Sketcher.Constraint("Parallel", 1, 3),
    Sketcher.Constraint("Equal", 0, 2),
    Sketcher.Constraint("Angle", 1, Q("7.5 deg")),
    Sketcher.Constraint("Distance", 3, 1.5),
    Sketcher.Constraint("DistanceX", 0, 2, 2, 2, 0.7579),
    Sketcher.Constraint("DistanceX", -1, 1, 1, 2, 7.731281),
    Sketcher.Constraint("DistanceY", 2, 2, -1, 1, 42.291292),
    Sketcher.Constraint("DistanceX", -1, 1, 3, 2, 4.837059),
])
pad27 = body27.newObject("PartDesign::Pad", "Pad026")
pad27.Profile = sketch27
pad27.Length = 30
body28 = doc.addObject("PartDesign::Body", "Body027")

# Sketch on XY plane
sketch28 = body28.newObject("Sketcher::SketchObject", "Sketch027")
sketch28.AttachmentSupport = (doc.getObject("XY_Plane027"), [""])
sketch28.MapMode = "FlatFace"
sketch28.AttachmentOffset = App.Placement(Vector(0, 0, -15), App.Rotation())
add_polygon(sketch28, [(12.2, -49.9), (13.6, -55.8), (16.2, -55.1), (14.3, -49.3)])  # lines 0-3
sketch28.addConstraint([
    Sketcher.Constraint("Parallel", 1, 3),
    Sketcher.Constraint("Equal", 0, 2),
    Sketcher.Constraint("Angle", 1, Q("15 deg")),
    Sketcher.Constraint("Distance", 1, 2.7),
    Sketcher.Constraint("Distance", 0, 6.07095),
    Sketcher.Constraint("DistanceX", -1, 1, 2, 2, 14.338982),
    Sketcher.Constraint("DistanceX", -1, 1, 3, 2, 12.229751),
    Sketcher.Constraint("DistanceY", 0, 2, -1, 1, 55.786118),
])
pad28 = body28.newObject("PartDesign::Pad", "Pad027")
pad28.Profile = sketch28
pad28.Length = 30
body29 = doc.addObject("PartDesign::Body", "Body028")

# Sketch on XY plane
sketch29 = body29.newObject("Sketcher::SketchObject", "Sketch028")
sketch29.AttachmentSupport = (doc.getObject("XY_Plane028"), [""])
sketch29.MapMode = "FlatFace"
sketch29.AttachmentOffset = App.Placement(Vector(0, 0, -15), App.Rotation())
add_polygon(sketch29, [(29.7, -30.8), (35.2, -36.8), (36.8, -35.2), (30.8, -29.7)])  # lines 0-3
sketch29.addConstraint([
    Sketcher.Constraint("Parallel", 1, 3),
    Sketcher.Constraint("Equal", 0, 2),
    Sketcher.Constraint("Angle", 1, Q("45 deg")),
    Sketcher.Constraint("Distance", 3, 1.5),
    Sketcher.Constraint("DistanceX", -1, 1, 0, 2, 35.2469),
    Sketcher.Constraint("DistanceY", 1, 2, -1, 1, 35.2469),
    Sketcher.Constraint("DistanceX", 2, 2, 1, 2, 6.028311),
    Sketcher.Constraint("Distance", 0, 8.190636),
])
pad29 = body29.newObject("PartDesign::Pad", "Pad028")
pad29.Profile = sketch29
pad29.Length = 30
body30 = doc.addObject("PartDesign::Body", "Body029")

# Sketch on XY plane
sketch30 = body30.newObject("Sketcher::SketchObject", "Sketch029")
sketch30.AttachmentSupport = (doc.getObject("XY_Plane029"), [""])
sketch30.MapMode = "FlatFace"
sketch30.AttachmentOffset = App.Placement(Vector(0, 0, -15), App.Rotation())
add_polygon(sketch30, [(40.1, -32.1), (44.7, -36), (46.4, -33.9), (41.4, -30.4)])  # lines 0-3
sketch30.addConstraint([
    Sketcher.Constraint("Parallel", 1, 3),
    Sketcher.Constraint("Equal", 0, 2),
    Sketcher.Constraint("Angle", 1, Q("52.5 deg")),
    Sketcher.Constraint("Distance", 1, 2.7),
    Sketcher.Constraint("Distance", 0, 6.07095),
    Sketcher.Constraint("DistanceX", -1, 1, 0, 2, 44.710551),
    Sketcher.Constraint("DistanceY", 0, 2, -1, 1, 36.00925),
    Sketcher.Constraint("DistanceY", 2, 2, -1, 1, 30.379609),
])
pad30 = body30.newObject("PartDesign::Pad", "Pad029")
pad30.Profile = sketch30
pad30.Length = 30
body31 = doc.addObject("PartDesign::Body", "Body030")

# Sketch on XY plane
sketch31 = body31.newObject("Sketcher::SketchObject", "Sketch030")
sketch31.AttachmentSupport = (doc.getObject("XY_Plane030"), [""])
sketch31.MapMode = "FlatFace"
sketch31.AttachmentOffset = App.Placement(Vector(0, 0, -15), App.Rotation())
add_polygon(sketch31, [(33.5, -26.6), (39.7, -31.9), (41.1, -30.1), (34.4, -25.4)])  # lines 0-3
sketch31.addConstraint([
    Sketcher.Constraint("Parallel", 1, 3),
    Sketcher.Constraint("Equal", 0, 2),
    Sketcher.Constraint("Angle", 1, Q("52.5 deg")),
    Sketcher.Constraint("Distance", 3, 1.5),
    Sketcher.Constraint("DistanceX", -1, 1, 0, 2, 39.747542),
    Sketcher.Constraint("DistanceY", 0, 2, -1, 1, 31.875568),
    Sketcher.Constraint("DistanceX", -1, 1, 3, 2, 33.46322),
    Sketcher.Constraint("Distance", 0, 8.190636),
])
pad31 = body31.newObject("PartDesign::Pad", "Pad030")
pad31.Profile = sketch31
pad31.Length = 30
body32 = doc.addObject("PartDesign::Body", "Body031")

# Sketch on XY plane
sketch32 = body32.newObject("Sketcher::SketchObject", "Sketch031")
sketch32.AttachmentSupport = (doc.getObject("XY_Plane031"), [""])
sketch32.MapMode = "FlatFace"
sketch32.AttachmentOffset = App.Placement(Vector(0, 0, -15), App.Rotation())
add_polygon(sketch32, [(43.9, -26.6), (49, -29.9), (50.4, -27.5), (45, -24.7)])  # lines 0-3
sketch32.addConstraint([
    Sketcher.Constraint("Parallel", 1, 3),
    Sketcher.Constraint("Equal", 0, 2),
    Sketcher.Constraint("Angle", 1, Q("60 deg")),
    Sketcher.Constraint("Distance", 1, 2.7),
    Sketcher.Constraint("Distance", 0, 6.07095),
    Sketcher.Constraint("DistanceY", 0, 2, -1, 1, 29.865288),
    Sketcher.Constraint("DistanceX", 2, 2, 1, 2, 5.381931),
    Sketcher.Constraint("DistanceX", -1, 1, 0, 2, 49.028196),
])
pad32 = body32.newObject("PartDesign::Pad", "Pad031")
pad32.Profile = sketch32
pad32.Length = 30

doc.recompute()
